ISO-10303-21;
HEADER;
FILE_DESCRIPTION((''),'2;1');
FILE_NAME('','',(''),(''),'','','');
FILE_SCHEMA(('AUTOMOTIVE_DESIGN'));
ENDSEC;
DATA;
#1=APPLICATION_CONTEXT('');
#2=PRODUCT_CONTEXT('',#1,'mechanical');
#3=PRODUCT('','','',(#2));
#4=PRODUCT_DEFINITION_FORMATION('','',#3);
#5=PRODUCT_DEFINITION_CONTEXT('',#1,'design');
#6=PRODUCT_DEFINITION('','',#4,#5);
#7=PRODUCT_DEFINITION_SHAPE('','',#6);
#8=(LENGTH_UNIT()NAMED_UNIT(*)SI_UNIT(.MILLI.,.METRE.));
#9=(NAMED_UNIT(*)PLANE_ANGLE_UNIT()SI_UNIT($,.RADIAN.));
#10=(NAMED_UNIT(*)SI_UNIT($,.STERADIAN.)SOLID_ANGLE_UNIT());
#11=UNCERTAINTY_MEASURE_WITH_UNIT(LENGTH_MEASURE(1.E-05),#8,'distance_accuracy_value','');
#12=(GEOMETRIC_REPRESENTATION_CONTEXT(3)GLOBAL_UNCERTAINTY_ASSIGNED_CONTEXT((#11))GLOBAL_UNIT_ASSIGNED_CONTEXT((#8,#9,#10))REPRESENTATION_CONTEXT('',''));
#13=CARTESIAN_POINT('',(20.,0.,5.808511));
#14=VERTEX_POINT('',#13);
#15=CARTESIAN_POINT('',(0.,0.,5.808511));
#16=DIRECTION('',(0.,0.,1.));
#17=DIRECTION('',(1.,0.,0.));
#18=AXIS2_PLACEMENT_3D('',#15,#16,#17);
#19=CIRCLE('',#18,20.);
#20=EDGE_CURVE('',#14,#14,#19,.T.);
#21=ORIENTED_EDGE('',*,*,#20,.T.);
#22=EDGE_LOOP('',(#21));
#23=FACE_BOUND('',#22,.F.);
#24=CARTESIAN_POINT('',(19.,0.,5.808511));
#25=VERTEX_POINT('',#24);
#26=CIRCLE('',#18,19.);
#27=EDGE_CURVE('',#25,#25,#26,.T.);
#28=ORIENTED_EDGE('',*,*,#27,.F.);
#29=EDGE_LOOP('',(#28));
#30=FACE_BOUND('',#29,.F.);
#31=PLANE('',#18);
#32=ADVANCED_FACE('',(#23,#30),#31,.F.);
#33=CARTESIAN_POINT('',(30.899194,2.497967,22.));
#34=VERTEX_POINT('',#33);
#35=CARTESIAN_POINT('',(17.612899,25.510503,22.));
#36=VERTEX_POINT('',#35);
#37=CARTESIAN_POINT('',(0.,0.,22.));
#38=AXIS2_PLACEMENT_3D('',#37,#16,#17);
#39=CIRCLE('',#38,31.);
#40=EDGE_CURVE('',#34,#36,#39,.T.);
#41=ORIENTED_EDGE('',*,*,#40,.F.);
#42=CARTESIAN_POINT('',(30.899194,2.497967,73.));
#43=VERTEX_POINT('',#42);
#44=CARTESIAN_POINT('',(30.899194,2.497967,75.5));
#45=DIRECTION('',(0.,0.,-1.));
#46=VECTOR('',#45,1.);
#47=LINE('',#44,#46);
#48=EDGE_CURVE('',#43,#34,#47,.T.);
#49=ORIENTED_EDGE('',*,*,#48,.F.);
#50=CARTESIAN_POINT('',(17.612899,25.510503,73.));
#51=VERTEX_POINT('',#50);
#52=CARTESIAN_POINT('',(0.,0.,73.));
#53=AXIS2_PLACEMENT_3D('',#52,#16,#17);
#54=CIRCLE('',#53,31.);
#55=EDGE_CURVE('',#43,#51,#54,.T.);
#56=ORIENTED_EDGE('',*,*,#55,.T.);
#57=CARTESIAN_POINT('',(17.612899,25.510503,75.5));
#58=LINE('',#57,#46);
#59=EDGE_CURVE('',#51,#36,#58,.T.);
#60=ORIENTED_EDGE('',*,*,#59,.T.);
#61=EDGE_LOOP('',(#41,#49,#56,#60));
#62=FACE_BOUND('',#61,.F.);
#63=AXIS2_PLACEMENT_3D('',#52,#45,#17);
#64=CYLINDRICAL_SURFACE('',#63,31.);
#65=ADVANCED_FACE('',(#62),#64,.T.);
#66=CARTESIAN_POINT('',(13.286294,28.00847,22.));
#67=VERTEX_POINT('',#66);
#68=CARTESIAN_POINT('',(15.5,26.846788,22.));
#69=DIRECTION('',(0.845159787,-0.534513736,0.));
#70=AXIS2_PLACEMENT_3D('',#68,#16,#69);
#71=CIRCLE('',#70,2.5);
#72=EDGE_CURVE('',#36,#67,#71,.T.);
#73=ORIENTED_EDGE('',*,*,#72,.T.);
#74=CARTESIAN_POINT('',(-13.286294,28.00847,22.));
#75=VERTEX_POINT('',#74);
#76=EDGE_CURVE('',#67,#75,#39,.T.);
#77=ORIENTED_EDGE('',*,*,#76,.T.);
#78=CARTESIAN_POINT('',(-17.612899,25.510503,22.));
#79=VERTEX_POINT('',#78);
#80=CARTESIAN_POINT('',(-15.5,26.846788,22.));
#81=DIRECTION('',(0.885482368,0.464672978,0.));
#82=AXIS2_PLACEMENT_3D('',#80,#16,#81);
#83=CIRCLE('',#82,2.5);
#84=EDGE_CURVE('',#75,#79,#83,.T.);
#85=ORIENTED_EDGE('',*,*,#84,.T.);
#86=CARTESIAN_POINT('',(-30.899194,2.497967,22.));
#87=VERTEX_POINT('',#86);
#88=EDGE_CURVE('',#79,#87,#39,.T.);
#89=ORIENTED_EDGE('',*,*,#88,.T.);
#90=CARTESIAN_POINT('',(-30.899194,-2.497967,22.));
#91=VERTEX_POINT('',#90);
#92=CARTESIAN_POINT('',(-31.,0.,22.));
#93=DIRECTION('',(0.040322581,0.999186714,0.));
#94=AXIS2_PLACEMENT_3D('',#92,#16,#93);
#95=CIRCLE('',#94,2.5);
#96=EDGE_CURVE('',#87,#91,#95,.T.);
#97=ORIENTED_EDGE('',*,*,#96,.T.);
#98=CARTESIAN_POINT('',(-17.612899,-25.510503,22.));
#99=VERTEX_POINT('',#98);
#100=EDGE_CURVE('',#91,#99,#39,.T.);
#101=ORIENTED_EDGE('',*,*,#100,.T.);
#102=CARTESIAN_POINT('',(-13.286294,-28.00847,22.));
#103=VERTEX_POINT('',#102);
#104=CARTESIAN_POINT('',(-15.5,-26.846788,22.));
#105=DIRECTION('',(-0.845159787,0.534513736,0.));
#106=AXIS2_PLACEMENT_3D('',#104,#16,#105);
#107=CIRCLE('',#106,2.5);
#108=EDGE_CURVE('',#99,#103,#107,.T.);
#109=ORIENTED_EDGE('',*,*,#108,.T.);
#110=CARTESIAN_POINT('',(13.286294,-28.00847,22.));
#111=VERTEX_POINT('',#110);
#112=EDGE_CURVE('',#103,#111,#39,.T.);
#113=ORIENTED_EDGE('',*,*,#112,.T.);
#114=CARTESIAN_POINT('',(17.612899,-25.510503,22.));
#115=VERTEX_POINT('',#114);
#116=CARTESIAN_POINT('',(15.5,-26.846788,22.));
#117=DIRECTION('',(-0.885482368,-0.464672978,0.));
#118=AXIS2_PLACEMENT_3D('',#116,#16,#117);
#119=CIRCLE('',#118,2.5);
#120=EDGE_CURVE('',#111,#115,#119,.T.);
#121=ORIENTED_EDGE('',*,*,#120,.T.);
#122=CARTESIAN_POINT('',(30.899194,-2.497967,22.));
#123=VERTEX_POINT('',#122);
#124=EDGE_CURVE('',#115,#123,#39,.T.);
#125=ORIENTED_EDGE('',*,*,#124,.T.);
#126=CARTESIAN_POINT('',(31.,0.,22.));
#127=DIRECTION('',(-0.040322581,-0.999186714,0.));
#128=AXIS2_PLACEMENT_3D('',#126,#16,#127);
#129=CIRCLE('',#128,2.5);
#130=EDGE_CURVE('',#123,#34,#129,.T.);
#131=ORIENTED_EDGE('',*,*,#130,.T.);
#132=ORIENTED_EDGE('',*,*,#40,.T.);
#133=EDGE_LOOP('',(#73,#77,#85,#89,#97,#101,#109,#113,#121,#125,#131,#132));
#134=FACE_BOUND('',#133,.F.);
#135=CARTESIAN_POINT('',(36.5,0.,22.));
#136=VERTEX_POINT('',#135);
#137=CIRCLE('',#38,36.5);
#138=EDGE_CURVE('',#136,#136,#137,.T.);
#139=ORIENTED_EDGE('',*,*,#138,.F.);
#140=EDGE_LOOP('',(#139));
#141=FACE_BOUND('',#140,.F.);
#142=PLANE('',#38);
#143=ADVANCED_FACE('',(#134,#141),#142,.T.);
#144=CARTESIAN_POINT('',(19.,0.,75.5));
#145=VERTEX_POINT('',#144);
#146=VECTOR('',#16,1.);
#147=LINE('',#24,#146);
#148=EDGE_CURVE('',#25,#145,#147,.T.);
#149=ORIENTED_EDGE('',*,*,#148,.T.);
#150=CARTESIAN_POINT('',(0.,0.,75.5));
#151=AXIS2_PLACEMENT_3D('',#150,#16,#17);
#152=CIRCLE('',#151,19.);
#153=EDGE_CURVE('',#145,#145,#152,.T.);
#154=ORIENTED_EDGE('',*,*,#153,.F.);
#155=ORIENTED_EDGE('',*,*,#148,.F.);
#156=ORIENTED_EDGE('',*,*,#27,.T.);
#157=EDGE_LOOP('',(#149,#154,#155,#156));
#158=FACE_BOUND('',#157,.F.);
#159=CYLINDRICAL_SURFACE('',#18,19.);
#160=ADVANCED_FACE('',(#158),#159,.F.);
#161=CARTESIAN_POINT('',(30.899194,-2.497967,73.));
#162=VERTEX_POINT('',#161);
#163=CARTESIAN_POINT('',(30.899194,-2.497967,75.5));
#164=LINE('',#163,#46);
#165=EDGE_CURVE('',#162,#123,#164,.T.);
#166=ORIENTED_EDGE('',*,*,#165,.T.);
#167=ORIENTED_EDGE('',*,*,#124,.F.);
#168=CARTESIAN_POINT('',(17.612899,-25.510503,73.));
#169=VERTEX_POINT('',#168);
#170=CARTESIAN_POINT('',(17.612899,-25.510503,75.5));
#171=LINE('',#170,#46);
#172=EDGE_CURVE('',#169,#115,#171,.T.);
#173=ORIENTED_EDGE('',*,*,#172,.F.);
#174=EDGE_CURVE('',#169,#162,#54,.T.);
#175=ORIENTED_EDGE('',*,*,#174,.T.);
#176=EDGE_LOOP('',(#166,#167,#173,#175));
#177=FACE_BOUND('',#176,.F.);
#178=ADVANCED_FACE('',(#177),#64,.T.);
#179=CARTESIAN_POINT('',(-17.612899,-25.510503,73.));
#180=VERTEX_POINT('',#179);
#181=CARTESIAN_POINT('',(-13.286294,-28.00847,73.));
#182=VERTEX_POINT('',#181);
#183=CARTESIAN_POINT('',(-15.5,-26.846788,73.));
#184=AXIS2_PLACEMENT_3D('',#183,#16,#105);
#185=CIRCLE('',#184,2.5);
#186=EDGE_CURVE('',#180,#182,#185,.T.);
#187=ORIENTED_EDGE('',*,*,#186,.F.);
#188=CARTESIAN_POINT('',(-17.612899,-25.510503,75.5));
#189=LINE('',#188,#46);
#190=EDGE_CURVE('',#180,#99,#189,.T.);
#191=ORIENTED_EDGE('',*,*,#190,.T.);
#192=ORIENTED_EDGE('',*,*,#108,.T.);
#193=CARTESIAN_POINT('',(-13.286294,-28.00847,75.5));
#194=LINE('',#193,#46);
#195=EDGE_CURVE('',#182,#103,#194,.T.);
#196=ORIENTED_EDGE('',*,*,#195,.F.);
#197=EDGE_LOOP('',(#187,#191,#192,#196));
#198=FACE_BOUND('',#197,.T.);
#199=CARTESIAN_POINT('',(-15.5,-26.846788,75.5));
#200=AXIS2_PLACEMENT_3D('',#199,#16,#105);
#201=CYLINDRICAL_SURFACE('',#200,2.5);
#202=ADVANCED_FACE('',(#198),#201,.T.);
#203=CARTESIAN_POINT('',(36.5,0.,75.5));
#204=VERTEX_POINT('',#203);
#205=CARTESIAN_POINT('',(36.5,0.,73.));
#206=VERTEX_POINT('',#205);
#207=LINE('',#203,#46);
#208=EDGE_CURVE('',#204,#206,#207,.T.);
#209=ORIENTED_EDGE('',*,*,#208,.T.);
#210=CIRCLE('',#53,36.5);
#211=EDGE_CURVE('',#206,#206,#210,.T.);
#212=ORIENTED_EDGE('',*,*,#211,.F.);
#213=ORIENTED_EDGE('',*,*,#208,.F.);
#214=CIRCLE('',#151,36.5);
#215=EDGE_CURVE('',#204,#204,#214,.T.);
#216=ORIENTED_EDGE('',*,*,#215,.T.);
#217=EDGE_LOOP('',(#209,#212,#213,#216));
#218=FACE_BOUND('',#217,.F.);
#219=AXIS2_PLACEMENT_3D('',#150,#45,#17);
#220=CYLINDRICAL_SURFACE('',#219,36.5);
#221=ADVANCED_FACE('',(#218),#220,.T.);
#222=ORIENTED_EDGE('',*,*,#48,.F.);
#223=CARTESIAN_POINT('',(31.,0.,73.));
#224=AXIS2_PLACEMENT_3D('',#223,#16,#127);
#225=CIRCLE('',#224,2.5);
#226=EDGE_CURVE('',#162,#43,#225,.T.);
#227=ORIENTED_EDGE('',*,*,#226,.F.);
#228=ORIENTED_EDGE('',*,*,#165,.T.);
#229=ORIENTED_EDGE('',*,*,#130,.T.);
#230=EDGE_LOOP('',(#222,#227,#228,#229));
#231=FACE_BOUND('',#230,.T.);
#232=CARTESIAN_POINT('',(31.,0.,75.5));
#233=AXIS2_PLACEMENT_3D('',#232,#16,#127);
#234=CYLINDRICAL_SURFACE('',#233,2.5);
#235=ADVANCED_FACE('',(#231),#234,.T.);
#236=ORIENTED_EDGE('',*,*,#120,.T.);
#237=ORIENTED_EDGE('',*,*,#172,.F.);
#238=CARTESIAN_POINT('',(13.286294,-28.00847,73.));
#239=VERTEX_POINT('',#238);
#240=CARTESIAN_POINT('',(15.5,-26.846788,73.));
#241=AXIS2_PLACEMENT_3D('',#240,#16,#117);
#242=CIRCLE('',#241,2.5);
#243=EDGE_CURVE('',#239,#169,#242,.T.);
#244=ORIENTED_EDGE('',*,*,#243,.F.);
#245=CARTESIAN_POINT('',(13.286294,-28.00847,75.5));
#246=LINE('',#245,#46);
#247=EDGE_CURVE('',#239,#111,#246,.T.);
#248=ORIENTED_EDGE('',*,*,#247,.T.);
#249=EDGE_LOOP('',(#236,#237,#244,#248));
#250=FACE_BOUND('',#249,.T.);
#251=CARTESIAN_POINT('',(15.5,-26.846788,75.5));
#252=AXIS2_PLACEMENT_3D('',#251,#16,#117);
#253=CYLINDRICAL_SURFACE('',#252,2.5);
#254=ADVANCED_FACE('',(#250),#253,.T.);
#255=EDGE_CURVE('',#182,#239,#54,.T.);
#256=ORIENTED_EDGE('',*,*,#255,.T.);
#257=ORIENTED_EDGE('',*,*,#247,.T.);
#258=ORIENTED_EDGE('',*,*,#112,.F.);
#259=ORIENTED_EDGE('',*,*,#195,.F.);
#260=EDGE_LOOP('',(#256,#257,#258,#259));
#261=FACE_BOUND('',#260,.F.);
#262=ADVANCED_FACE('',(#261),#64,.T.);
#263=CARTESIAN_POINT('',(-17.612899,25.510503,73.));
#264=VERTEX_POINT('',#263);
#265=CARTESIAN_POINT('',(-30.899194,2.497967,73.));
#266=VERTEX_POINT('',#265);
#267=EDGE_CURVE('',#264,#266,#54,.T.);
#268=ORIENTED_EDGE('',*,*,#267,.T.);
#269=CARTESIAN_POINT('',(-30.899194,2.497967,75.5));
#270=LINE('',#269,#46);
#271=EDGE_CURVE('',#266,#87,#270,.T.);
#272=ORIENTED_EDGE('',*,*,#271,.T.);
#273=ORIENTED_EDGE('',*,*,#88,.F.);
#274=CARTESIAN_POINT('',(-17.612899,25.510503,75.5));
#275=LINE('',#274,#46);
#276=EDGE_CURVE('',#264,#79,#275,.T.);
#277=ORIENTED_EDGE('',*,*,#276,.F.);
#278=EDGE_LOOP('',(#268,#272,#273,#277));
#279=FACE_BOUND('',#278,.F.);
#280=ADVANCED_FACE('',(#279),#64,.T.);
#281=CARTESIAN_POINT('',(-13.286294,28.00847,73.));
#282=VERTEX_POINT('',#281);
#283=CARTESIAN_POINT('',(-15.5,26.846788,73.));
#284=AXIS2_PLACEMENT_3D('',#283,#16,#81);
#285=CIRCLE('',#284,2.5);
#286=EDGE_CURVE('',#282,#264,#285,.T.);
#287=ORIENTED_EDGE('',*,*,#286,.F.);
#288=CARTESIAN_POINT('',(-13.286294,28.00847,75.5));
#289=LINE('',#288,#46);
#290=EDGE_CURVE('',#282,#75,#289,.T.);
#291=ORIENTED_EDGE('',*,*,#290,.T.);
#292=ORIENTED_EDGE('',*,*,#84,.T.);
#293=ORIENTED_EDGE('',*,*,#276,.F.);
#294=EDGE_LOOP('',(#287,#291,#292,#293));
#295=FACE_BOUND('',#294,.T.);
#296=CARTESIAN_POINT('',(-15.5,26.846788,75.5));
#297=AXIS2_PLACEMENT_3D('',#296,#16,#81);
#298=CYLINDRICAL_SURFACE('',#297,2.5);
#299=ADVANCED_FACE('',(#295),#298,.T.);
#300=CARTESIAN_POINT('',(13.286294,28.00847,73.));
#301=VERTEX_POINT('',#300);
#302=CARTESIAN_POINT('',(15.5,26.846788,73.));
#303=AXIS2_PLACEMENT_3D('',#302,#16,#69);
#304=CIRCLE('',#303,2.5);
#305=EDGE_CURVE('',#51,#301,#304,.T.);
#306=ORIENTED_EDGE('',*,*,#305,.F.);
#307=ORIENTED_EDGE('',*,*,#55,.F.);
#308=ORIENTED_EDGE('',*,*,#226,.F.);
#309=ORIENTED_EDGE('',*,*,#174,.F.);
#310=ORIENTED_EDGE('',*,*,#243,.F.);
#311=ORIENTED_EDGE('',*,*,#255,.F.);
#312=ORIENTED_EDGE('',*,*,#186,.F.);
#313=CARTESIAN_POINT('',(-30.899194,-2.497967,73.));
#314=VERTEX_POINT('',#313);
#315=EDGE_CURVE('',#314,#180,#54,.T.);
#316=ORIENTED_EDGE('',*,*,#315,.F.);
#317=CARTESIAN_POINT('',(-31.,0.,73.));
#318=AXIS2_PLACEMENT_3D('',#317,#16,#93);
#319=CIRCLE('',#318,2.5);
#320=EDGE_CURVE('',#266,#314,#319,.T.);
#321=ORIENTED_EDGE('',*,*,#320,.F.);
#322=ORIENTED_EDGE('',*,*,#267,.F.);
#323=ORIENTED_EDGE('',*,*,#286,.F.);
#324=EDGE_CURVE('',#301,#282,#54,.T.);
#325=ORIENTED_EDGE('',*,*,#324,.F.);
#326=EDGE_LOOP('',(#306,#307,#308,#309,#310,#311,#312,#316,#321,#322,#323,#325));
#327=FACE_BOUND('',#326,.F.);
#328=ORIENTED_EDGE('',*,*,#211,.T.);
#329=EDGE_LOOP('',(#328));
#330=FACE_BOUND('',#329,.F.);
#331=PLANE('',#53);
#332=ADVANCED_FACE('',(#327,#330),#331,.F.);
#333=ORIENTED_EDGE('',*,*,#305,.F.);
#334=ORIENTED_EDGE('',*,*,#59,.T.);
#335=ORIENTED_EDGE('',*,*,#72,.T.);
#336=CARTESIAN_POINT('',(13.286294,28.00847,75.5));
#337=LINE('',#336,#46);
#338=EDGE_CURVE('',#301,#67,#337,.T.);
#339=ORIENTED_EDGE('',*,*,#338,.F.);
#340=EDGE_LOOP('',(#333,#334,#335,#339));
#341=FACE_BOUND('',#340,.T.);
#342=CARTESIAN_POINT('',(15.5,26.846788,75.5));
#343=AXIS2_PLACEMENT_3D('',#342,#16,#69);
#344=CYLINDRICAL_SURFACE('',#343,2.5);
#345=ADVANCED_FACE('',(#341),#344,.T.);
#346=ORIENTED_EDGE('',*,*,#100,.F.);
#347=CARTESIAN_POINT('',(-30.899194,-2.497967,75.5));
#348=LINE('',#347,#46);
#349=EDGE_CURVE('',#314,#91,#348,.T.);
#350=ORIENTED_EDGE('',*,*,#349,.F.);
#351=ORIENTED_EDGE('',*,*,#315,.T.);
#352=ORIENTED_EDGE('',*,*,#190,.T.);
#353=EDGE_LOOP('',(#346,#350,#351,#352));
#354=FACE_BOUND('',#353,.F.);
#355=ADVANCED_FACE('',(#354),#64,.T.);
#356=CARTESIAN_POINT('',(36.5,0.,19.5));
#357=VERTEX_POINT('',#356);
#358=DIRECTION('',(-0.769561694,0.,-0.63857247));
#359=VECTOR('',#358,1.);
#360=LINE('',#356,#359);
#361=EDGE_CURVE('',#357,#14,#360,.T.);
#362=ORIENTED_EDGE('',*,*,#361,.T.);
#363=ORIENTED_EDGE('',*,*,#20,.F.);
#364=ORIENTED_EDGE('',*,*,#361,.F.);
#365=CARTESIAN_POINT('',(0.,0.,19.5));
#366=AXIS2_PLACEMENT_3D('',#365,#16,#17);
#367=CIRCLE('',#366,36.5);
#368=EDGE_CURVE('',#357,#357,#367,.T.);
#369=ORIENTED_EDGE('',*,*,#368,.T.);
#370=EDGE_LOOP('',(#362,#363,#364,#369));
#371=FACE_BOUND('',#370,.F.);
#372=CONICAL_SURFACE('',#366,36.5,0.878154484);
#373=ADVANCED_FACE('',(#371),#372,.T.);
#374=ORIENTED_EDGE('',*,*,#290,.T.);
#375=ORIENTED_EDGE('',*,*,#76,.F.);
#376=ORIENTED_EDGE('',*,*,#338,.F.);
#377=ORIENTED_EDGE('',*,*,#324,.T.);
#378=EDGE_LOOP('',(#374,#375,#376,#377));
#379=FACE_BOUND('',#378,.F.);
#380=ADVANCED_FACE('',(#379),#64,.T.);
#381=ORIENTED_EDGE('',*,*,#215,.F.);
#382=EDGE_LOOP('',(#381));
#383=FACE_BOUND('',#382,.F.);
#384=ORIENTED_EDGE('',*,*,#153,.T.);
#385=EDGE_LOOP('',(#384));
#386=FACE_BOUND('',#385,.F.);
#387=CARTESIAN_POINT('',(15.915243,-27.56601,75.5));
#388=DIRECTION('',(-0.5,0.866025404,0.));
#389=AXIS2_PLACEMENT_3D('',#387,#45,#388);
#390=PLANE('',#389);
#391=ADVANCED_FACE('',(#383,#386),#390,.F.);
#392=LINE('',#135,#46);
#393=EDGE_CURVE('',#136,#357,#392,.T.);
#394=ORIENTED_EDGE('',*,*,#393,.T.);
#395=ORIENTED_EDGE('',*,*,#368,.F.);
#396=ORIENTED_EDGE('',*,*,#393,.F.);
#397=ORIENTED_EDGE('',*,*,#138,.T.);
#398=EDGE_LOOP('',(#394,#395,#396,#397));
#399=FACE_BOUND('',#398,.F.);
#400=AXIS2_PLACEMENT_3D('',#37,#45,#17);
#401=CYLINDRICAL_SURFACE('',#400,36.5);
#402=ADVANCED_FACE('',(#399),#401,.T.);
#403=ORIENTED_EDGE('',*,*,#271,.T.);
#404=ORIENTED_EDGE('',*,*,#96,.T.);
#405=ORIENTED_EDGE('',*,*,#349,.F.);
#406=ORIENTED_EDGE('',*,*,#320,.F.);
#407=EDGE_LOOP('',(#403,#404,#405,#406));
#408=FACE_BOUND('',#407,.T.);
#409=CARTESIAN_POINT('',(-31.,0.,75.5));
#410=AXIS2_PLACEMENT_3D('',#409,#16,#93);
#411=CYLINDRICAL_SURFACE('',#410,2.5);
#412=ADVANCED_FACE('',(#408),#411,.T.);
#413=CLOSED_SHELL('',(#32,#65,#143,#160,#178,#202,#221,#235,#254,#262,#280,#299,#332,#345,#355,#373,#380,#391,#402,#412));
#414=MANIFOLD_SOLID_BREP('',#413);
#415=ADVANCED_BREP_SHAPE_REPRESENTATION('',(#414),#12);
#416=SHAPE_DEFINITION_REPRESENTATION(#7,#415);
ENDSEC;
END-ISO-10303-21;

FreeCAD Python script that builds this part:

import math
import FreeCAD as App
import Part
import Sketcher

V = App.Vector
Q = App.Units.Quantity

doc = App.newDocument("Part")
body = doc.addObject("PartDesign::Body", "Body")

sketch1 = body.newObject("Sketcher::SketchObject", "Sketch")
sketch1.AttachmentSupport = (doc.getObject("XZ_Plane"), [""])
sketch1.MapMode = "FlatFace"
sketch1.addGeometry([
    Part.LineSegment(V(19, 75.5, 0), V(19, 5.8, 0)),
    Part.LineSegment(V(19, 5.8, 0), V(20, 5.8, 0)),
    Part.LineSegment(V(20, 5.8, 0), V(36.5, 19.5, 0)),
    Part.LineSegment(V(36.5, 19.5, 0), V(36.5, 22, 0)),
    Part.LineSegment(V(36.5, 22, 0), V(31, 22, 0)),
    Part.LineSegment(V(31, 22, 0), V(31, 73, 0)),
    Part.LineSegment(V(31, 73, 0), V(36.5, 73, 0)),
    Part.LineSegment(V(36.5, 73, 0), V(36.5, 75.5, 0)),
    Part.LineSegment(V(36.5, 75.5, 0), V(19, 75.5, 0)),
], False)
sketch1.addConstraint([
    Sketcher.Constraint("Coincident", 0, 2, 1, 1),
    Sketcher.Constraint("Coincident", 1, 2, 2, 1),
    Sketcher.Constraint("Coincident", 2, 2, 3, 1),
    Sketcher.Constraint("Coincident", 3, 2, 4, 1),
    Sketcher.Constraint("Coincident", 4, 2, 5, 1),
    Sketcher.Constraint("Coincident", 5, 2, 6, 1),
    Sketcher.Constraint("Coincident", 6, 2, 7, 1),
    Sketcher.Constraint("Coincident", 7, 2, 8, 1),
    Sketcher.Constraint("Coincident", 8, 2, 0, 1),
    Sketcher.Constraint("Vertical", 0),
    Sketcher.Constraint("Horizontal", 1),
    Sketcher.Constraint("Vertical", 3),
    Sketcher.Constraint("Horizontal", 4),
    Sketcher.Constraint("Vertical", 5),
    Sketcher.Constraint("Horizontal", 6),
    Sketcher.Constraint("Vertical", 7),
    Sketcher.Constraint("Horizontal", 8),
    Sketcher.Constraint("Vertical", 3, 2, 6, 2),
    Sketcher.Constraint("Equal", 3, 7),
    Sketcher.Constraint("DistanceX", 1, 1, 1, 2, Q("1 mm")),
    Sketcher.Constraint("DistanceY", 5, 1, 5, 2, Q("51 mm")),
    Sketcher.Constraint("DistanceX", 4, 2, 4, 1, Q("5.5 mm")),
    Sketcher.Constraint("DistanceX", 8, 2, 8, 1, Q("17.5 mm")),
    Sketcher.Constraint("DistanceY", 3, 1, 3, 2, Q("2.5 mm")),
    Sketcher.Constraint("DistanceX", -1, 1, 0, 2, Q("19 mm")),
    Sketcher.Constraint("DistanceY", -1, 1, 3, 2, Q("22 mm")),
    Sketcher.Constraint("DistanceY", 0, 2, 0, 1, Q("69.691489 mm")),
])
revolution = body.newObject("PartDesign::Revolution", "Revolution")
revolution.Profile = sketch1
revolution.ReferenceAxis = (sketch1, ["V_Axis"])
revolution.Angle = 360

sketch2 = body.newObject("Sketcher::SketchObject", "Sketch001")
sketch2.AttachmentSupport = (doc.getObject("XY_Plane"), [""])
sketch2.MapMode = "FlatFace"
sketch2.AttachmentOffset = App.Placement(V(0, 0, 75.5), App.Rotation())
sketch2.addGeometry([
    Part.ArcOfCircle(Part.Circle(V(0, 0, 0), V(0, 0, 1), 31), math.radians(-4.62), math.radians(4.62)),
    Part.ArcOfCircle(Part.Circle(V(31, 0, 0), V(0, 0, 1), 2.5), math.radians(-92), math.radians(92)),
], False)
sketch2.addConstraint([
    Sketcher.Constraint("Coincident", 0, 1, 1, 1),
    Sketcher.Constraint("Coincident", 1, 2, 0, 2),
    Sketcher.Constraint("Coincident", 0, 3, -1, 1),
    Sketcher.Constraint("PointOnObject", 1, 3, -1),
    Sketcher.Constraint("Radius", 0, Q("31 mm")),
    Sketcher.Constraint("Radius", 1, Q("2.5 mm")),
    Sketcher.Constraint("DistanceX", -1, 1, 1, 3, Q("31 mm")),
])
pad1 = body.newObject("PartDesign::Pad", "Pad")
pad1.Profile = sketch2
pad1.Length = 56
pad1.Reversed = True
doc.recompute()

polarpattern = body.newObject("PartDesign::PolarPattern", "PolarPattern")
polarpattern.Originals = [pad1]
polarpattern.Axis = (doc.getObject("Z_Axis"), [""])
polarpattern.Angle = 360
polarpattern.Occurrences = 6
body.Tip = polarpattern

doc.recompute()
